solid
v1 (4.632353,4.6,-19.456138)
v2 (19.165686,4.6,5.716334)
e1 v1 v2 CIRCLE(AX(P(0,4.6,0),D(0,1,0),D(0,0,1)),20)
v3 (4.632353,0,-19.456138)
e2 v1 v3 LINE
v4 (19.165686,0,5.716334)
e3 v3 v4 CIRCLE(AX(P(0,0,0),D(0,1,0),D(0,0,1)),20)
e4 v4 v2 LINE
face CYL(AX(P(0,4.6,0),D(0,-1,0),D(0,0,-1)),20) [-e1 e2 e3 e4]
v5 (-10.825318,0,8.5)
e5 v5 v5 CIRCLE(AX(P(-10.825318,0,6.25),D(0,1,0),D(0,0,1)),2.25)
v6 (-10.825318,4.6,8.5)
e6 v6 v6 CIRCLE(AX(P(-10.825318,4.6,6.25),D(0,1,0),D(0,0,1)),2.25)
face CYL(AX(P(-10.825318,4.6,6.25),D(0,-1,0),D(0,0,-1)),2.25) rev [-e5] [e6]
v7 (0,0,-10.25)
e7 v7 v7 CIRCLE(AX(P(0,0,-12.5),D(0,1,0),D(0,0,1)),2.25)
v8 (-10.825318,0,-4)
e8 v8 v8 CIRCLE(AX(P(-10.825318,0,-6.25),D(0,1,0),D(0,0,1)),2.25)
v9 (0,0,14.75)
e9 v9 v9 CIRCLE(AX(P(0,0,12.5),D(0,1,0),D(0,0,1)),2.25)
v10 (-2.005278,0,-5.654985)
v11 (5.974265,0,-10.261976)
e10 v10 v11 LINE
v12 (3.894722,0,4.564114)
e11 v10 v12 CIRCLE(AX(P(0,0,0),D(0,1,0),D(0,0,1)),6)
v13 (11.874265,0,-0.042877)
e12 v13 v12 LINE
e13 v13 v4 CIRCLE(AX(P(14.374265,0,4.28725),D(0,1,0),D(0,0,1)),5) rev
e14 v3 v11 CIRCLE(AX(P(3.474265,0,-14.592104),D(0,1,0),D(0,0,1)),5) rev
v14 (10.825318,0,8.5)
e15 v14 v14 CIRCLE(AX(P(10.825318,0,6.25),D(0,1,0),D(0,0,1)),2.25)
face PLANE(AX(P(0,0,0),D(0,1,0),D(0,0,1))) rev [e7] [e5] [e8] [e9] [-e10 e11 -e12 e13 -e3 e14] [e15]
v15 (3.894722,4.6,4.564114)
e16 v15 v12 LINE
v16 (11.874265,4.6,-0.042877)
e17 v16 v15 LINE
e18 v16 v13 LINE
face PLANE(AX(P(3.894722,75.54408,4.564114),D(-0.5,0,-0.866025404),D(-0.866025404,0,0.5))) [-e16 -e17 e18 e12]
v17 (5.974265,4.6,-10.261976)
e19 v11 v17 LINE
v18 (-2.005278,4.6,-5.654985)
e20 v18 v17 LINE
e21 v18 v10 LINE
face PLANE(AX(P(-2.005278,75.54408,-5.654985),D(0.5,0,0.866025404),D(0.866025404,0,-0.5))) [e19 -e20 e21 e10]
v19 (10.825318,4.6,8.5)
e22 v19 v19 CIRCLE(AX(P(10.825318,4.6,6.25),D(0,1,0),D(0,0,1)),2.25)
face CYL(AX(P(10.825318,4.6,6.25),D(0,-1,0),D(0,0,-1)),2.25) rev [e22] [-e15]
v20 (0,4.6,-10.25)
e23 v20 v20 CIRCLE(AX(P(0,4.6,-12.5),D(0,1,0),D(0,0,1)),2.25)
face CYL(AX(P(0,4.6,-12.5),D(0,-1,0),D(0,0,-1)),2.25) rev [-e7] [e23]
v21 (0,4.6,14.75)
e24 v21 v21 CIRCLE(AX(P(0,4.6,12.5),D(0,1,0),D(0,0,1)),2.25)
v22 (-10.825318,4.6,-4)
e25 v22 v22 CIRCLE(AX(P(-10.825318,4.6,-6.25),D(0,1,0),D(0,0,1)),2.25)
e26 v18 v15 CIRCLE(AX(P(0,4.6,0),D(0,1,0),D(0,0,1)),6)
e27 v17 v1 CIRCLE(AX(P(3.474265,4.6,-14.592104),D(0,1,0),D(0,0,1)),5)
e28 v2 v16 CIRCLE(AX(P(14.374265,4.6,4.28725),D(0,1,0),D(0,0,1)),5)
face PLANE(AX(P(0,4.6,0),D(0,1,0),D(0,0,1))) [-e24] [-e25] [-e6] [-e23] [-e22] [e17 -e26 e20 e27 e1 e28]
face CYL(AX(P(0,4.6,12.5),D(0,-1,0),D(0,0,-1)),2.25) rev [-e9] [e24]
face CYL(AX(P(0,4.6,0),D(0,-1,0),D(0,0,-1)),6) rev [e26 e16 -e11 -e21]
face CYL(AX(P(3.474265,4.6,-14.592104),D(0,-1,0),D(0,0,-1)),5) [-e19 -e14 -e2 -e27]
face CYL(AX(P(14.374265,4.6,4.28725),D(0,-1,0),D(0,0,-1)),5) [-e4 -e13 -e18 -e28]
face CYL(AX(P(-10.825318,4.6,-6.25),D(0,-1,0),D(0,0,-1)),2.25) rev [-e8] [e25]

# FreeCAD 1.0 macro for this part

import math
import FreeCAD as App
import Part
import Sketcher

V = App.Vector
Q = App.Units.Quantity


def edges_at(feature, points):
    """Names of the edges that pass closest to the given points."""
    edges = feature.Shape.Edges
    near = lambda p: min(range(len(edges)), key=lambda i: edges[i].distToShape(Part.Vertex(*p))[0])
    return sorted({f"Edge{near(p) + 1}" for p in points})

doc = App.newDocument("Part")
body = doc.addObject("PartDesign::Body", "Body")

# Sketch on XZ plane
sketch1 = body.newObject("Sketcher::SketchObject", "Sketch")
sketch1.AttachmentSupport = (doc.getObject("XZ_Plane"), [""])
sketch1.MapMode = "FlatFace"
sketch1.addGeometry(Part.Circle(V(0, 0, 0), V(0, 0, 1), 20), False)
sketch1.addGeometry(Part.Circle(V(-10.8, -6.2, 0), V(0, 0, 1), 2.2), False)
sketch1.addGeometry(Part.Circle(V(0, -12.5, 0), V(0, 0, 1), 2.2), False)
sketch1.addGeometry(Part.Circle(V(-10.8, 6.2, 0), V(0, 0, 1), 2.2), False)
sketch1.addGeometry(Part.Circle(V(10.8, -6.2, 0), V(0, 0, 1), 2.2), False)
sketch1.addGeometry(Part.Circle(V(0, 0, 0), V(0, 0, 1), 6), False)
sketch1.addGeometry(Part.Circle(V(0, 12.5, 0), V(0, 0, 1), 2.2), False)
sketch1.addGeometry(Part.Circle(V(10.8, 6.2, 0), V(0, 0, 1), 2.2), False)
sketch1.addConstraint(Sketcher.Constraint("Coincident", 0, 3, -1, 1))
sketch1.addConstraint(Sketcher.Constraint("Coincident", 5, 3, -1, 1))
sketch1.addConstraint(Sketcher.Constraint("Equal", 1, 2))
sketch1.addConstraint(Sketcher.Constraint("Equal", 2, 3))
sketch1.addConstraint(Sketcher.Constraint("Equal", 3, 4))
sketch1.addConstraint(Sketcher.Constraint("Equal", 4, 6))
sketch1.addConstraint(Sketcher.Constraint("Equal", 6, 7))
sketch1.addConstraint(Sketcher.Constraint("Symmetric", 3, 3, 4, 3, -1, 1))
sketch1.addConstraint(Sketcher.Constraint("Symmetric", 2, 3, 6, 3, -1, 1))
sketch1.addConstraint(Sketcher.Constraint("Symmetric", 1, 3, 7, 3, -1, 1))
sketch1.addConstraint(Sketcher.Constraint("Symmetric", 1, 3, 4, 3, -2))
sketch1.addConstraint(Sketcher.Constraint("PointOnObject", 2, 3, -2))
sketch1.addConstraint(Sketcher.Constraint("Diameter", 0, Q("40 mm")))
sketch1.addConstraint(Sketcher.Constraint("Diameter", 5, Q("12 mm")))
sketch1.addConstraint(Sketcher.Constraint("Diameter", 1, Q("4.5 mm")))
sketch1.addConstraint(Sketcher.Constraint("DistanceY", 2, 3, -1, 1, Q("12.5 mm")))
sketch1.addConstraint(Sketcher.Constraint("DistanceY", 1, 3, 3, 3, Q("12.5 mm")))
sketch1.addConstraint(Sketcher.Constraint("DistanceX", 1, 3, -1, 1, Q("10.825318 mm")))
pad1 = body.newObject("PartDesign::Pad", "Pad")
pad1.Profile = sketch1
pad1.Length = 4.6
pad1.Reversed = True

# Sketch on XZ plane
sketch2 = body.newObject("Sketcher::SketchObject", "Sketch001")
sketch2.AttachmentSupport = (doc.getObject("XZ_Plane"), [""])
sketch2.MapMode = "FlatFace"
sketch2.AttachmentOffset = App.Placement(V(0, 0, -4.6), App.Rotation())
sketch2.addGeometry(Part.LineSegment(V(13.6, -14.7, 0), V(-2, -5.7, 0)), False)
sketch2.addGeometry(Part.ArcOfCircle(Part.Circle(V(0, 0, 0), V(0, 0, 1), 6), math.radians(-110), math.radians(0)), False)
sketch2.addGeometry(Part.ArcOfCircle(Part.Circle(V(0, 0, 0), V(0, 0, 1), 6), math.radians(0), math.radians(50)), False)
sketch2.addGeometry(Part.LineSegment(V(3.9, 4.6, 0), V(19.5, -4.4, 0)), False)
sketch2.addGeometry(Part.ArcOfCircle(Part.Circle(V(0, 0, 0), V(0, 0, 1), 20), math.radians(-47), math.radians(-13)), False)
sketch2.addGeometry(Part.Circle(V(10.8, -6.2, 0), V(0, 0, 1), 2.2), False)
sketch2.addConstraint(Sketcher.Constraint("Coincident", 0, 2, 1, 1))
sketch2.addConstraint(Sketcher.Constraint("Tangent", 1, 2, 2, 1))
sketch2.addConstraint(Sketcher.Constraint("Coincident", 2, 2, 3, 1))
sketch2.addConstraint(Sketcher.Constraint("Coincident", 3, 2, 4, 2))
sketch2.addConstraint(Sketcher.Constraint("Coincident", 4, 1, 0, 1))
sketch2.addConstraint(Sketcher.Constraint("Coincident", 1, 3, -1, 1))
sketch2.addConstraint(Sketcher.Constraint("Coincident", 4, 3, -1, 1))
sketch2.addConstraint(Sketcher.Constraint("Equal", 1, 2))
sketch2.addConstraint(Sketcher.Constraint("PointOnObject", 1, 2, -1))
sketch2.addConstraint(Sketcher.Constraint("Parallel", 0, 3))
sketch2.addConstraint(Sketcher.Constraint("Equal", 0, 3))
sketch2.addConstraint(Sketcher.Constraint("Radius", 1, Q("6 mm")))
sketch2.addConstraint(Sketcher.Constraint("Radius", 4, Q("20 mm")))
sketch2.addConstraint(Sketcher.Constraint("Diameter", 5, Q("4.5 mm")))
sketch2.addConstraint(Sketcher.Constraint("Angle", 0, Q("150 deg")))
sketch2.addConstraint(Sketcher.Constraint("DistanceX", 0, 2, 2, 2, Q("5.9 mm")))
sketch2.addConstraint(Sketcher.Constraint("DistanceY", 5, 3, -1, 1, Q("6.25 mm")))
sketch2.addConstraint(Sketcher.Constraint("DistanceX", 5, 3, 3, 2, Q("8.67438 mm")))
pocket1 = body.newObject("PartDesign::Pocket", "Pocket")
pocket1.Profile = sketch2
pocket1.Type = "ThroughAll"
pocket1.Midplane = True
doc.recompute()

fillet = body.newObject("PartDesign::Fillet", "Fillet")
fillet.Base = (pocket1, edges_at(pocket1, [(19.5, 2.3, -4.445), (13.6, 2.3, -14.665)]))
fillet.Radius = 5

doc.recompute()
